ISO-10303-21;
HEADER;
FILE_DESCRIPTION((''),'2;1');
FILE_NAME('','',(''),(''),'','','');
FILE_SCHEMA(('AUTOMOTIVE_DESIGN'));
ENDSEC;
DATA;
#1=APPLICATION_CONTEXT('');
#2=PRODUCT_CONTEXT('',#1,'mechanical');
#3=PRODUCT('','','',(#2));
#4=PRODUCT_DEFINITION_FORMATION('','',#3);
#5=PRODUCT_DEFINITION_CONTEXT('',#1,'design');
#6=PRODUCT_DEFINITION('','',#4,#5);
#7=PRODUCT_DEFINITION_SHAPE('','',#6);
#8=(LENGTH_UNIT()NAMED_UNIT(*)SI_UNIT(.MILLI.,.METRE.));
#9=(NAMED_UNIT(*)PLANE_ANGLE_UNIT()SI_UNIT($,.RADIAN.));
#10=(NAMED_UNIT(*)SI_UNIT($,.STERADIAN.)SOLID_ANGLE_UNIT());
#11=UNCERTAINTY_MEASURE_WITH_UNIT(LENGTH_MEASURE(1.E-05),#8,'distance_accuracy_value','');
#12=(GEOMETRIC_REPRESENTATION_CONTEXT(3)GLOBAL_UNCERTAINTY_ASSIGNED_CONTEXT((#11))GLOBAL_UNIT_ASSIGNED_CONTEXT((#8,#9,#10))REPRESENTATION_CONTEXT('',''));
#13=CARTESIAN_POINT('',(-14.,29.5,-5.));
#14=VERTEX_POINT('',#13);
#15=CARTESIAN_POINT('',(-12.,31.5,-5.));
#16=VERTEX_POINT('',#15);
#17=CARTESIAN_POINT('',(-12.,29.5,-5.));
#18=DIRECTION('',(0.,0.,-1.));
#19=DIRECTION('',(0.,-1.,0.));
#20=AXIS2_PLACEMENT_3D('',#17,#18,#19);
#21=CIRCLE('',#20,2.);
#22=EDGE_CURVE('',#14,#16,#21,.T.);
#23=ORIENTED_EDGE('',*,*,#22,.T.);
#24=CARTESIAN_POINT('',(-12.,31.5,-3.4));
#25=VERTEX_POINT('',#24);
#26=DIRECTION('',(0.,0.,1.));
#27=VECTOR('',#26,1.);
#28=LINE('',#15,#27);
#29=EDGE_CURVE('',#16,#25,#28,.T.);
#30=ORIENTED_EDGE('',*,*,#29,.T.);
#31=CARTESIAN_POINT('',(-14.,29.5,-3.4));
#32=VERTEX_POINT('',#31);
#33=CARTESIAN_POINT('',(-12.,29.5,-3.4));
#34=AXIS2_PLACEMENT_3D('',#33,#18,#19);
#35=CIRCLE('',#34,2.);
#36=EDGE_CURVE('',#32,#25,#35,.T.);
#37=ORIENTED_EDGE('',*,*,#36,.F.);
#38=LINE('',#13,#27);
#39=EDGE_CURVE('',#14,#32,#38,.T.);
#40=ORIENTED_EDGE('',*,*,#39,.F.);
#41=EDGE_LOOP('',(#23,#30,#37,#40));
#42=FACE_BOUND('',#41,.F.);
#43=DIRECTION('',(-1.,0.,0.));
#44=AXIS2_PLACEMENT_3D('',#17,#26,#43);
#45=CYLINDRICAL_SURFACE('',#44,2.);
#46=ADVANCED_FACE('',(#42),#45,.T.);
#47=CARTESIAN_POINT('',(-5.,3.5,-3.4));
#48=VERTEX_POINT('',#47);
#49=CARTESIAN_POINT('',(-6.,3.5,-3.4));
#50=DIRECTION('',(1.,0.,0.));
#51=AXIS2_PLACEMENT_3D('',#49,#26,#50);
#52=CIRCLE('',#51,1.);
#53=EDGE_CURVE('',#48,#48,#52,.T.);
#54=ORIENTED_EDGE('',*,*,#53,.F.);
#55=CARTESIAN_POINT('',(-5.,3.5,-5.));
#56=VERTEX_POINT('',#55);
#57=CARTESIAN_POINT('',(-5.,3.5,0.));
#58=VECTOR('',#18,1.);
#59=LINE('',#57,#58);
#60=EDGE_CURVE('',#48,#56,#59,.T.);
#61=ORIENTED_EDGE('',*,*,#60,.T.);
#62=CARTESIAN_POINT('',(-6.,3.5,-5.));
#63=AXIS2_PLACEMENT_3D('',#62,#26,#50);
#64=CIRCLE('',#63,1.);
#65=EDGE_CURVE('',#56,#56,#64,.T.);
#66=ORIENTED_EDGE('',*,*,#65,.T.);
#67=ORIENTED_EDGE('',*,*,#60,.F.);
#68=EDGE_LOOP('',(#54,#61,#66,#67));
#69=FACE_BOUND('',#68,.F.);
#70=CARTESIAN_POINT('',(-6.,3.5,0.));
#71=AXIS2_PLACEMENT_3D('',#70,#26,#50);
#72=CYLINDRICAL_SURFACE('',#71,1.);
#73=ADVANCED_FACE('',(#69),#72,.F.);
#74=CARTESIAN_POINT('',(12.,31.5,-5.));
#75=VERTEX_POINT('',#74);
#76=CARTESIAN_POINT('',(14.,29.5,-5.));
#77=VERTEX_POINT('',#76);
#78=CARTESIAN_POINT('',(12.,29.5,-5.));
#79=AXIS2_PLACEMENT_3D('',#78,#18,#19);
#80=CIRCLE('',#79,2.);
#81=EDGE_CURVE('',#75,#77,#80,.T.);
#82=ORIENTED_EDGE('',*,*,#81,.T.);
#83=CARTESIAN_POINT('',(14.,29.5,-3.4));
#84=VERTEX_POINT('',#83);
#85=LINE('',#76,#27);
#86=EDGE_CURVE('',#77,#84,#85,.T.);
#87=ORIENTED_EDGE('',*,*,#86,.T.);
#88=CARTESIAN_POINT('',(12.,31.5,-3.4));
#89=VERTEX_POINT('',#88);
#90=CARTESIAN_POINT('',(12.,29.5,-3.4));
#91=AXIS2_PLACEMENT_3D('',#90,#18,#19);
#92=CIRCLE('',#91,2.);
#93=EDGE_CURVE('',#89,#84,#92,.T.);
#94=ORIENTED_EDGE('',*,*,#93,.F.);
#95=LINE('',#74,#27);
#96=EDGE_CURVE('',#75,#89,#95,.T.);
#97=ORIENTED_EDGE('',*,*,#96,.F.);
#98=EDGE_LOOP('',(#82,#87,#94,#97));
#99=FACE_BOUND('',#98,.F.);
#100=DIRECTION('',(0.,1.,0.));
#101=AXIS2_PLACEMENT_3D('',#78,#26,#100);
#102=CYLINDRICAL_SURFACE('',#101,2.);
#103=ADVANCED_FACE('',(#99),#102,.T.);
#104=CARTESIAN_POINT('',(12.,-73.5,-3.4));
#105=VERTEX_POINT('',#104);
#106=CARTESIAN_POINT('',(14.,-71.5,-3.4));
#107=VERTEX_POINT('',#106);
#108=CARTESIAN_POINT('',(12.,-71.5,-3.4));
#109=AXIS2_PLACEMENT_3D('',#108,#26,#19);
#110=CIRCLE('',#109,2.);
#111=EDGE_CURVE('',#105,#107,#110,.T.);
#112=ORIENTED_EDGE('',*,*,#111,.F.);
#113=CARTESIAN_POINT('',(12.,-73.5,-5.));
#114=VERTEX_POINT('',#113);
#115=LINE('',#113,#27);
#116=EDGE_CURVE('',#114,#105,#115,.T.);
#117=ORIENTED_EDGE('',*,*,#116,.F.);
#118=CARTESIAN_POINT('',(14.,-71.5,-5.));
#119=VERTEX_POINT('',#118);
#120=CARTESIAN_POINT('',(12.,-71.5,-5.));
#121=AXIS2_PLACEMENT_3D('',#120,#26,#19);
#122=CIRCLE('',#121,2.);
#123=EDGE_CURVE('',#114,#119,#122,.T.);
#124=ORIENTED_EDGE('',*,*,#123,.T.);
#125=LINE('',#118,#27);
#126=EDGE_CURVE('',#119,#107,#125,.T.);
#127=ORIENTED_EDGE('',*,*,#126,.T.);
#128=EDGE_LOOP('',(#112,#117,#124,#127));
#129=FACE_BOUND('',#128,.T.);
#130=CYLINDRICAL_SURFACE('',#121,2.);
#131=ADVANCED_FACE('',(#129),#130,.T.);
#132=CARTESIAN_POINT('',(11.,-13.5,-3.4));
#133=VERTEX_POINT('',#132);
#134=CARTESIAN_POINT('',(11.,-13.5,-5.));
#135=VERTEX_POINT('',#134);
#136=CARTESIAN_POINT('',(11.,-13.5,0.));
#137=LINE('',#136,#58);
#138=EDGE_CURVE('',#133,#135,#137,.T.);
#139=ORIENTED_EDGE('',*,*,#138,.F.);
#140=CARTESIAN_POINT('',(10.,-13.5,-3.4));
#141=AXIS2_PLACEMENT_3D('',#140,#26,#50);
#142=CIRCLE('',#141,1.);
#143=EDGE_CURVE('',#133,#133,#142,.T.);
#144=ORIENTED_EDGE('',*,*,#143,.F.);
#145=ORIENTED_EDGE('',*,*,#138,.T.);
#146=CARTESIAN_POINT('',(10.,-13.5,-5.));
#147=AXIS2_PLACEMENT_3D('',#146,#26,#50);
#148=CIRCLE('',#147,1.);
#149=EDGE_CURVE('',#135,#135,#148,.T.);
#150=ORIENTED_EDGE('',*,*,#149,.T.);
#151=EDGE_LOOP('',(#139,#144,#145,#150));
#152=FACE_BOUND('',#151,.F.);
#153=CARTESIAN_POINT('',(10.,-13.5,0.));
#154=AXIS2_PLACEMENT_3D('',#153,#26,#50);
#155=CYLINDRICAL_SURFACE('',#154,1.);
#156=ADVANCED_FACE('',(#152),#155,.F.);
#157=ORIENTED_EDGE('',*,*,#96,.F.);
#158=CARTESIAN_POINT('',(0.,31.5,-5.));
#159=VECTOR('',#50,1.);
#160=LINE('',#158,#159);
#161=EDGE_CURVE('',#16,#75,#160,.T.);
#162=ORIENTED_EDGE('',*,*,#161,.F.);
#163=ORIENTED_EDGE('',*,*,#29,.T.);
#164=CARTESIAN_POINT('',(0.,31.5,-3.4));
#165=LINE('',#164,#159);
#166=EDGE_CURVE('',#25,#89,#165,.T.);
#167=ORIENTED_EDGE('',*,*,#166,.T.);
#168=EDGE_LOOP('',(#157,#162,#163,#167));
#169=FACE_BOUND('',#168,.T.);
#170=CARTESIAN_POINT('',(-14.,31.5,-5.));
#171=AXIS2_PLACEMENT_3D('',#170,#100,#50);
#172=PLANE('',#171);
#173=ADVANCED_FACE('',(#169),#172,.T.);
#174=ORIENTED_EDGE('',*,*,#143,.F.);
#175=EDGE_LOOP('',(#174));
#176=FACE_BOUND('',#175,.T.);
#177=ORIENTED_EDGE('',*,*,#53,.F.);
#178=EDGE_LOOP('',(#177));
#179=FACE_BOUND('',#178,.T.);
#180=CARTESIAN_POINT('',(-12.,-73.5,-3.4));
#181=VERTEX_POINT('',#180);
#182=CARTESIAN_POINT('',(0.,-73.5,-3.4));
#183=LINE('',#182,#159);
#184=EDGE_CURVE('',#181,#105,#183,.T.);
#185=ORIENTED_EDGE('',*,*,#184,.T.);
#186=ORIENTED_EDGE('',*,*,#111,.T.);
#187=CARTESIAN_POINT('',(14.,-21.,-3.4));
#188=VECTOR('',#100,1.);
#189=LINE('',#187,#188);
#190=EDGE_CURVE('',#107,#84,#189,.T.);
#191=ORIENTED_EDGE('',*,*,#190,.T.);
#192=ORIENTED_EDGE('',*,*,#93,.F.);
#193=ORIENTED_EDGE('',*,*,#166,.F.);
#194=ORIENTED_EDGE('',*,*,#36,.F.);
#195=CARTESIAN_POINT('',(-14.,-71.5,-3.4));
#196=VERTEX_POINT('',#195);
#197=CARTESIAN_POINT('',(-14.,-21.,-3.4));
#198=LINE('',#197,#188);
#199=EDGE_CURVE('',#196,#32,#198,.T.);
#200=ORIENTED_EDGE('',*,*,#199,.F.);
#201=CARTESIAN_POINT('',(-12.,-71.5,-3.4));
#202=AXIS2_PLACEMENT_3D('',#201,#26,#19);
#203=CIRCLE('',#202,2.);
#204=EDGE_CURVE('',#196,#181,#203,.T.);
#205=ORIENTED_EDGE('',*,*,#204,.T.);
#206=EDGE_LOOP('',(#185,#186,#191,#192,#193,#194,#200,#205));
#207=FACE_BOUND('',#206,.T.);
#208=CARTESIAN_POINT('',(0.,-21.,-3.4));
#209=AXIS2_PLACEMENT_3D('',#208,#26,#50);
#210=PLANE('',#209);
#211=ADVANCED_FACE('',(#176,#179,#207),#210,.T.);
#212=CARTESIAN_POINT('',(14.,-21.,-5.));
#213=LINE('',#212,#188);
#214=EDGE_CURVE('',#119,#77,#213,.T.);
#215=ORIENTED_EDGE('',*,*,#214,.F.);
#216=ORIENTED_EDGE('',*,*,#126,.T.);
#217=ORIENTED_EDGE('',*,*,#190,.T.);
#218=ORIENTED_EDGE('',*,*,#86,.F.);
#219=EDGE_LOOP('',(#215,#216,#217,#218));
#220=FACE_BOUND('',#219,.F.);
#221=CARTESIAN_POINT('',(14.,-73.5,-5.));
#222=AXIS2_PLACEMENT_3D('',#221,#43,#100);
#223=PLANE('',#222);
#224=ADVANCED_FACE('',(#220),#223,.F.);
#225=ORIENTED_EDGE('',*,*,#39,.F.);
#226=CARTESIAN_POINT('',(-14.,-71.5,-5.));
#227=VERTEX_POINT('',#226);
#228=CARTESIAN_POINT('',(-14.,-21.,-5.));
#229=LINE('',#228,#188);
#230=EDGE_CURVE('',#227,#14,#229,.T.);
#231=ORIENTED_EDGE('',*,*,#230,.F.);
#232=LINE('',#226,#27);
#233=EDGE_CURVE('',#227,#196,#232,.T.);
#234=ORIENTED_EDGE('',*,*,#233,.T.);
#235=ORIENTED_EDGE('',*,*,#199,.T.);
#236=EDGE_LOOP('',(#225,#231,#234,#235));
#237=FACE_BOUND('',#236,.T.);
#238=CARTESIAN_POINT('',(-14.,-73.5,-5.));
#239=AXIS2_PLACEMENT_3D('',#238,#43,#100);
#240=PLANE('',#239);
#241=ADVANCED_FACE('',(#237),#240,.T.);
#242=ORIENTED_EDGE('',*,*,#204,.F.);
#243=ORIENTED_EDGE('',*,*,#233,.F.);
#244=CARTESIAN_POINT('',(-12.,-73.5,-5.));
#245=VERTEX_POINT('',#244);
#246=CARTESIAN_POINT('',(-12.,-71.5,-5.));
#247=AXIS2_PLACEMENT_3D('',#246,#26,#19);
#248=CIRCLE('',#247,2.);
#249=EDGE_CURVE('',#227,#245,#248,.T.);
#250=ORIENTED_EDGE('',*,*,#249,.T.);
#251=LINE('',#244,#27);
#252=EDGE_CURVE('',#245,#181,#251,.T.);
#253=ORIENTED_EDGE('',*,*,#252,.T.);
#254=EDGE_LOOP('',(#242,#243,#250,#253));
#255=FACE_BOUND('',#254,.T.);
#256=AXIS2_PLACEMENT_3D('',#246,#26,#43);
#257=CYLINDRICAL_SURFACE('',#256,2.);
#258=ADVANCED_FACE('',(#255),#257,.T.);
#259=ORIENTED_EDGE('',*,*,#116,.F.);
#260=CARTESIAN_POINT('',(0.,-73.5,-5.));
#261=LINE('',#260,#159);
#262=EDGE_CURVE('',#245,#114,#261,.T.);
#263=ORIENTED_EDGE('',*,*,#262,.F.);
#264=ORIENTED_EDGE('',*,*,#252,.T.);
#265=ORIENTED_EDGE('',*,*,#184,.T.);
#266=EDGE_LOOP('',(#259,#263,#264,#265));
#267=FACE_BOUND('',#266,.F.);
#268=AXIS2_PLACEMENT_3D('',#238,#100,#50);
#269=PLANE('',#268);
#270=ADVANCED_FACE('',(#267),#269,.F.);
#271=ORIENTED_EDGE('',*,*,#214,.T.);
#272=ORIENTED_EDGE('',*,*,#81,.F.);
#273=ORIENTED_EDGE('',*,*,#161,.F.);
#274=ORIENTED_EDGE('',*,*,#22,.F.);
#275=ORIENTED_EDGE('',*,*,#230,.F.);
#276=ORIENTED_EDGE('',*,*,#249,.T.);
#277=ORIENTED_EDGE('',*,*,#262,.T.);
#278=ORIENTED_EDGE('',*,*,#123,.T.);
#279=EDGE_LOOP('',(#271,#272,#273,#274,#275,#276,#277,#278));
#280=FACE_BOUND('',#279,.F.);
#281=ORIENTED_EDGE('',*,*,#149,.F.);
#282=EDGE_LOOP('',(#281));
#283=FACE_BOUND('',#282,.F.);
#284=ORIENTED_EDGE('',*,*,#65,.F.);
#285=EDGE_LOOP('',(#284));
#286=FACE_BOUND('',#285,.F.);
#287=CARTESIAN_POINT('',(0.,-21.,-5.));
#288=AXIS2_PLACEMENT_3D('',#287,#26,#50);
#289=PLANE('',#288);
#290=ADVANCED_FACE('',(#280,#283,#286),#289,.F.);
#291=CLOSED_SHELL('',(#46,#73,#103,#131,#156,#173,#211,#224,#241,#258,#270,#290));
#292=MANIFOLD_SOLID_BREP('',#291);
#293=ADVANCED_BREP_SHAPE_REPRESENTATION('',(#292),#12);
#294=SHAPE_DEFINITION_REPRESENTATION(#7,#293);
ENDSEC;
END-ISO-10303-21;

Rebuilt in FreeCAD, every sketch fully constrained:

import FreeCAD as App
import Part
import Sketcher
from FreeCAD import Vector
Q = App.Units.Quantity


def edges_at(feature, points):
    """Names of the edges that pass closest to the given points."""
    edges = feature.Shape.Edges
    near = lambda p: min(range(len(edges)), key=lambda i: edges[i].distToShape(Part.Vertex(*p))[0])
    return sorted({f"Edge{near(p) + 1}" for p in points})

doc = App.newDocument("Part")
params = doc.addObject("Spreadsheet::Sheet", "Params")
for row, (alias, value) in enumerate([
    ("sketch1_width", "28 mm"),
    ("sketch1_height", "105 mm"),
    ("pad1_length", "1.6 mm"),
    ("sketch2_diameter", "2 mm"),
    ("pocket1_length", "5 mm"),
    ("fillet_radius", "2 mm"),
], start=1):
    params.set(f"A{row}", alias)
    params.set(f"B{row}", "=" + value)
    params.setAlias(f"B{row}", alias)

body = doc.addObject("PartDesign::Body", "Body")

# Sketch on XY plane
sketch1 = body.newObject("Sketcher::SketchObject", "Sketch")
sketch1.AttachmentSupport = (doc.getObject("XY_Plane"), [""])
sketch1.MapMode = "FlatFace"
sketch1.AttachmentOffset = App.Placement(Vector(0, 0, -5), App.Rotation())
sketch1.addGeometry([
    Part.LineSegment(Vector(-14, 32, 0), Vector(-14, -74, 0)),
    Part.LineSegment(Vector(-14, -74, 0), Vector(14, -74, 0)),
    Part.LineSegment(Vector(14, -74, 0), Vector(14, 32, 0)),
    Part.LineSegment(Vector(14, 32, 0), Vector(-14, 32, 0)),
], False)
sketch1.addConstraint([
    Sketcher.Constraint("Coincident", 0, 2, 1, 1),
    Sketcher.Constraint("Coincident", 1, 2, 2, 1),
    Sketcher.Constraint("Coincident", 2, 2, 3, 1),
    Sketcher.Constraint("Coincident", 3, 2, 0, 1),
    Sketcher.Constraint("Vertical", 0),
    Sketcher.Constraint("Horizontal", 1),
    Sketcher.Constraint("Vertical", 2),
    Sketcher.Constraint("Horizontal", 3),
    Sketcher.Constraint("DistanceX", 1, 1, 1, 2, Q("28 mm")),
    Sketcher.Constraint("DistanceY", 0, 2, 0, 1, Q("105 mm")),
    Sketcher.Constraint("DistanceX", 0, 2, -1, 1, Q("14 mm")),
    Sketcher.Constraint("DistanceY", 0, 2, -1, 1, Q("73.5 mm")),
])
sketch1.setExpression("Constraints[8]", "Params.sketch1_width")
sketch1.setExpression("Constraints[9]", "Params.sketch1_height")
pad1 = body.newObject("PartDesign::Pad", "Pad")
pad1.Profile = sketch1
pad1.setExpression("Length", "Params.pad1_length")

# Sketch on XY plane
sketch2 = body.newObject("Sketcher::SketchObject", "Sketch001")
sketch2.AttachmentSupport = (doc.getObject("XY_Plane"), [""])
sketch2.MapMode = "FlatFace"
sketch2.addGeometry([
    Part.Circle(Vector(10, -13.5, 0), Vector(0, 0, 1), 1),
    Part.Circle(Vector(-6, 3.5, 0), Vector(0, 0, 1), 1),
], False)
sketch2.addConstraint([
    Sketcher.Constraint("Equal", 0, 1),
    Sketcher.Constraint("Diameter", 0, Q("2 mm")),
    Sketcher.Constraint("DistanceX", -1, 1, 0, 3, Q("10 mm")),
    Sketcher.Constraint("DistanceX", 1, 3, -1, 1, Q("6 mm")),
    Sketcher.Constraint("DistanceY", 0, 3, 1, 3, Q("17 mm")),
    Sketcher.Constraint("DistanceY", 0, 3, -1, 1, Q("13.5 mm")),
])
sketch2.setExpression("Constraints[1]", "Params.sketch2_diameter")
pocket1 = body.newObject("PartDesign::Pocket", "Pocket")
pocket1.Profile = sketch2
pocket1.setExpression("Length", "Params.pocket1_length")
doc.recompute()

fillet = body.newObject("PartDesign::Fillet", "Fillet")
fillet.Base = (pocket1, edges_at(pocket1, [
    (14, 31.5, -4.2),
    (-14, 31.5, -4.2),
    (14, -73.5, -4.2),
    (-14, -73.5, -4.2),
]))
fillet.setExpression("Radius", "Params.fillet_radius")

doc.recompute()
